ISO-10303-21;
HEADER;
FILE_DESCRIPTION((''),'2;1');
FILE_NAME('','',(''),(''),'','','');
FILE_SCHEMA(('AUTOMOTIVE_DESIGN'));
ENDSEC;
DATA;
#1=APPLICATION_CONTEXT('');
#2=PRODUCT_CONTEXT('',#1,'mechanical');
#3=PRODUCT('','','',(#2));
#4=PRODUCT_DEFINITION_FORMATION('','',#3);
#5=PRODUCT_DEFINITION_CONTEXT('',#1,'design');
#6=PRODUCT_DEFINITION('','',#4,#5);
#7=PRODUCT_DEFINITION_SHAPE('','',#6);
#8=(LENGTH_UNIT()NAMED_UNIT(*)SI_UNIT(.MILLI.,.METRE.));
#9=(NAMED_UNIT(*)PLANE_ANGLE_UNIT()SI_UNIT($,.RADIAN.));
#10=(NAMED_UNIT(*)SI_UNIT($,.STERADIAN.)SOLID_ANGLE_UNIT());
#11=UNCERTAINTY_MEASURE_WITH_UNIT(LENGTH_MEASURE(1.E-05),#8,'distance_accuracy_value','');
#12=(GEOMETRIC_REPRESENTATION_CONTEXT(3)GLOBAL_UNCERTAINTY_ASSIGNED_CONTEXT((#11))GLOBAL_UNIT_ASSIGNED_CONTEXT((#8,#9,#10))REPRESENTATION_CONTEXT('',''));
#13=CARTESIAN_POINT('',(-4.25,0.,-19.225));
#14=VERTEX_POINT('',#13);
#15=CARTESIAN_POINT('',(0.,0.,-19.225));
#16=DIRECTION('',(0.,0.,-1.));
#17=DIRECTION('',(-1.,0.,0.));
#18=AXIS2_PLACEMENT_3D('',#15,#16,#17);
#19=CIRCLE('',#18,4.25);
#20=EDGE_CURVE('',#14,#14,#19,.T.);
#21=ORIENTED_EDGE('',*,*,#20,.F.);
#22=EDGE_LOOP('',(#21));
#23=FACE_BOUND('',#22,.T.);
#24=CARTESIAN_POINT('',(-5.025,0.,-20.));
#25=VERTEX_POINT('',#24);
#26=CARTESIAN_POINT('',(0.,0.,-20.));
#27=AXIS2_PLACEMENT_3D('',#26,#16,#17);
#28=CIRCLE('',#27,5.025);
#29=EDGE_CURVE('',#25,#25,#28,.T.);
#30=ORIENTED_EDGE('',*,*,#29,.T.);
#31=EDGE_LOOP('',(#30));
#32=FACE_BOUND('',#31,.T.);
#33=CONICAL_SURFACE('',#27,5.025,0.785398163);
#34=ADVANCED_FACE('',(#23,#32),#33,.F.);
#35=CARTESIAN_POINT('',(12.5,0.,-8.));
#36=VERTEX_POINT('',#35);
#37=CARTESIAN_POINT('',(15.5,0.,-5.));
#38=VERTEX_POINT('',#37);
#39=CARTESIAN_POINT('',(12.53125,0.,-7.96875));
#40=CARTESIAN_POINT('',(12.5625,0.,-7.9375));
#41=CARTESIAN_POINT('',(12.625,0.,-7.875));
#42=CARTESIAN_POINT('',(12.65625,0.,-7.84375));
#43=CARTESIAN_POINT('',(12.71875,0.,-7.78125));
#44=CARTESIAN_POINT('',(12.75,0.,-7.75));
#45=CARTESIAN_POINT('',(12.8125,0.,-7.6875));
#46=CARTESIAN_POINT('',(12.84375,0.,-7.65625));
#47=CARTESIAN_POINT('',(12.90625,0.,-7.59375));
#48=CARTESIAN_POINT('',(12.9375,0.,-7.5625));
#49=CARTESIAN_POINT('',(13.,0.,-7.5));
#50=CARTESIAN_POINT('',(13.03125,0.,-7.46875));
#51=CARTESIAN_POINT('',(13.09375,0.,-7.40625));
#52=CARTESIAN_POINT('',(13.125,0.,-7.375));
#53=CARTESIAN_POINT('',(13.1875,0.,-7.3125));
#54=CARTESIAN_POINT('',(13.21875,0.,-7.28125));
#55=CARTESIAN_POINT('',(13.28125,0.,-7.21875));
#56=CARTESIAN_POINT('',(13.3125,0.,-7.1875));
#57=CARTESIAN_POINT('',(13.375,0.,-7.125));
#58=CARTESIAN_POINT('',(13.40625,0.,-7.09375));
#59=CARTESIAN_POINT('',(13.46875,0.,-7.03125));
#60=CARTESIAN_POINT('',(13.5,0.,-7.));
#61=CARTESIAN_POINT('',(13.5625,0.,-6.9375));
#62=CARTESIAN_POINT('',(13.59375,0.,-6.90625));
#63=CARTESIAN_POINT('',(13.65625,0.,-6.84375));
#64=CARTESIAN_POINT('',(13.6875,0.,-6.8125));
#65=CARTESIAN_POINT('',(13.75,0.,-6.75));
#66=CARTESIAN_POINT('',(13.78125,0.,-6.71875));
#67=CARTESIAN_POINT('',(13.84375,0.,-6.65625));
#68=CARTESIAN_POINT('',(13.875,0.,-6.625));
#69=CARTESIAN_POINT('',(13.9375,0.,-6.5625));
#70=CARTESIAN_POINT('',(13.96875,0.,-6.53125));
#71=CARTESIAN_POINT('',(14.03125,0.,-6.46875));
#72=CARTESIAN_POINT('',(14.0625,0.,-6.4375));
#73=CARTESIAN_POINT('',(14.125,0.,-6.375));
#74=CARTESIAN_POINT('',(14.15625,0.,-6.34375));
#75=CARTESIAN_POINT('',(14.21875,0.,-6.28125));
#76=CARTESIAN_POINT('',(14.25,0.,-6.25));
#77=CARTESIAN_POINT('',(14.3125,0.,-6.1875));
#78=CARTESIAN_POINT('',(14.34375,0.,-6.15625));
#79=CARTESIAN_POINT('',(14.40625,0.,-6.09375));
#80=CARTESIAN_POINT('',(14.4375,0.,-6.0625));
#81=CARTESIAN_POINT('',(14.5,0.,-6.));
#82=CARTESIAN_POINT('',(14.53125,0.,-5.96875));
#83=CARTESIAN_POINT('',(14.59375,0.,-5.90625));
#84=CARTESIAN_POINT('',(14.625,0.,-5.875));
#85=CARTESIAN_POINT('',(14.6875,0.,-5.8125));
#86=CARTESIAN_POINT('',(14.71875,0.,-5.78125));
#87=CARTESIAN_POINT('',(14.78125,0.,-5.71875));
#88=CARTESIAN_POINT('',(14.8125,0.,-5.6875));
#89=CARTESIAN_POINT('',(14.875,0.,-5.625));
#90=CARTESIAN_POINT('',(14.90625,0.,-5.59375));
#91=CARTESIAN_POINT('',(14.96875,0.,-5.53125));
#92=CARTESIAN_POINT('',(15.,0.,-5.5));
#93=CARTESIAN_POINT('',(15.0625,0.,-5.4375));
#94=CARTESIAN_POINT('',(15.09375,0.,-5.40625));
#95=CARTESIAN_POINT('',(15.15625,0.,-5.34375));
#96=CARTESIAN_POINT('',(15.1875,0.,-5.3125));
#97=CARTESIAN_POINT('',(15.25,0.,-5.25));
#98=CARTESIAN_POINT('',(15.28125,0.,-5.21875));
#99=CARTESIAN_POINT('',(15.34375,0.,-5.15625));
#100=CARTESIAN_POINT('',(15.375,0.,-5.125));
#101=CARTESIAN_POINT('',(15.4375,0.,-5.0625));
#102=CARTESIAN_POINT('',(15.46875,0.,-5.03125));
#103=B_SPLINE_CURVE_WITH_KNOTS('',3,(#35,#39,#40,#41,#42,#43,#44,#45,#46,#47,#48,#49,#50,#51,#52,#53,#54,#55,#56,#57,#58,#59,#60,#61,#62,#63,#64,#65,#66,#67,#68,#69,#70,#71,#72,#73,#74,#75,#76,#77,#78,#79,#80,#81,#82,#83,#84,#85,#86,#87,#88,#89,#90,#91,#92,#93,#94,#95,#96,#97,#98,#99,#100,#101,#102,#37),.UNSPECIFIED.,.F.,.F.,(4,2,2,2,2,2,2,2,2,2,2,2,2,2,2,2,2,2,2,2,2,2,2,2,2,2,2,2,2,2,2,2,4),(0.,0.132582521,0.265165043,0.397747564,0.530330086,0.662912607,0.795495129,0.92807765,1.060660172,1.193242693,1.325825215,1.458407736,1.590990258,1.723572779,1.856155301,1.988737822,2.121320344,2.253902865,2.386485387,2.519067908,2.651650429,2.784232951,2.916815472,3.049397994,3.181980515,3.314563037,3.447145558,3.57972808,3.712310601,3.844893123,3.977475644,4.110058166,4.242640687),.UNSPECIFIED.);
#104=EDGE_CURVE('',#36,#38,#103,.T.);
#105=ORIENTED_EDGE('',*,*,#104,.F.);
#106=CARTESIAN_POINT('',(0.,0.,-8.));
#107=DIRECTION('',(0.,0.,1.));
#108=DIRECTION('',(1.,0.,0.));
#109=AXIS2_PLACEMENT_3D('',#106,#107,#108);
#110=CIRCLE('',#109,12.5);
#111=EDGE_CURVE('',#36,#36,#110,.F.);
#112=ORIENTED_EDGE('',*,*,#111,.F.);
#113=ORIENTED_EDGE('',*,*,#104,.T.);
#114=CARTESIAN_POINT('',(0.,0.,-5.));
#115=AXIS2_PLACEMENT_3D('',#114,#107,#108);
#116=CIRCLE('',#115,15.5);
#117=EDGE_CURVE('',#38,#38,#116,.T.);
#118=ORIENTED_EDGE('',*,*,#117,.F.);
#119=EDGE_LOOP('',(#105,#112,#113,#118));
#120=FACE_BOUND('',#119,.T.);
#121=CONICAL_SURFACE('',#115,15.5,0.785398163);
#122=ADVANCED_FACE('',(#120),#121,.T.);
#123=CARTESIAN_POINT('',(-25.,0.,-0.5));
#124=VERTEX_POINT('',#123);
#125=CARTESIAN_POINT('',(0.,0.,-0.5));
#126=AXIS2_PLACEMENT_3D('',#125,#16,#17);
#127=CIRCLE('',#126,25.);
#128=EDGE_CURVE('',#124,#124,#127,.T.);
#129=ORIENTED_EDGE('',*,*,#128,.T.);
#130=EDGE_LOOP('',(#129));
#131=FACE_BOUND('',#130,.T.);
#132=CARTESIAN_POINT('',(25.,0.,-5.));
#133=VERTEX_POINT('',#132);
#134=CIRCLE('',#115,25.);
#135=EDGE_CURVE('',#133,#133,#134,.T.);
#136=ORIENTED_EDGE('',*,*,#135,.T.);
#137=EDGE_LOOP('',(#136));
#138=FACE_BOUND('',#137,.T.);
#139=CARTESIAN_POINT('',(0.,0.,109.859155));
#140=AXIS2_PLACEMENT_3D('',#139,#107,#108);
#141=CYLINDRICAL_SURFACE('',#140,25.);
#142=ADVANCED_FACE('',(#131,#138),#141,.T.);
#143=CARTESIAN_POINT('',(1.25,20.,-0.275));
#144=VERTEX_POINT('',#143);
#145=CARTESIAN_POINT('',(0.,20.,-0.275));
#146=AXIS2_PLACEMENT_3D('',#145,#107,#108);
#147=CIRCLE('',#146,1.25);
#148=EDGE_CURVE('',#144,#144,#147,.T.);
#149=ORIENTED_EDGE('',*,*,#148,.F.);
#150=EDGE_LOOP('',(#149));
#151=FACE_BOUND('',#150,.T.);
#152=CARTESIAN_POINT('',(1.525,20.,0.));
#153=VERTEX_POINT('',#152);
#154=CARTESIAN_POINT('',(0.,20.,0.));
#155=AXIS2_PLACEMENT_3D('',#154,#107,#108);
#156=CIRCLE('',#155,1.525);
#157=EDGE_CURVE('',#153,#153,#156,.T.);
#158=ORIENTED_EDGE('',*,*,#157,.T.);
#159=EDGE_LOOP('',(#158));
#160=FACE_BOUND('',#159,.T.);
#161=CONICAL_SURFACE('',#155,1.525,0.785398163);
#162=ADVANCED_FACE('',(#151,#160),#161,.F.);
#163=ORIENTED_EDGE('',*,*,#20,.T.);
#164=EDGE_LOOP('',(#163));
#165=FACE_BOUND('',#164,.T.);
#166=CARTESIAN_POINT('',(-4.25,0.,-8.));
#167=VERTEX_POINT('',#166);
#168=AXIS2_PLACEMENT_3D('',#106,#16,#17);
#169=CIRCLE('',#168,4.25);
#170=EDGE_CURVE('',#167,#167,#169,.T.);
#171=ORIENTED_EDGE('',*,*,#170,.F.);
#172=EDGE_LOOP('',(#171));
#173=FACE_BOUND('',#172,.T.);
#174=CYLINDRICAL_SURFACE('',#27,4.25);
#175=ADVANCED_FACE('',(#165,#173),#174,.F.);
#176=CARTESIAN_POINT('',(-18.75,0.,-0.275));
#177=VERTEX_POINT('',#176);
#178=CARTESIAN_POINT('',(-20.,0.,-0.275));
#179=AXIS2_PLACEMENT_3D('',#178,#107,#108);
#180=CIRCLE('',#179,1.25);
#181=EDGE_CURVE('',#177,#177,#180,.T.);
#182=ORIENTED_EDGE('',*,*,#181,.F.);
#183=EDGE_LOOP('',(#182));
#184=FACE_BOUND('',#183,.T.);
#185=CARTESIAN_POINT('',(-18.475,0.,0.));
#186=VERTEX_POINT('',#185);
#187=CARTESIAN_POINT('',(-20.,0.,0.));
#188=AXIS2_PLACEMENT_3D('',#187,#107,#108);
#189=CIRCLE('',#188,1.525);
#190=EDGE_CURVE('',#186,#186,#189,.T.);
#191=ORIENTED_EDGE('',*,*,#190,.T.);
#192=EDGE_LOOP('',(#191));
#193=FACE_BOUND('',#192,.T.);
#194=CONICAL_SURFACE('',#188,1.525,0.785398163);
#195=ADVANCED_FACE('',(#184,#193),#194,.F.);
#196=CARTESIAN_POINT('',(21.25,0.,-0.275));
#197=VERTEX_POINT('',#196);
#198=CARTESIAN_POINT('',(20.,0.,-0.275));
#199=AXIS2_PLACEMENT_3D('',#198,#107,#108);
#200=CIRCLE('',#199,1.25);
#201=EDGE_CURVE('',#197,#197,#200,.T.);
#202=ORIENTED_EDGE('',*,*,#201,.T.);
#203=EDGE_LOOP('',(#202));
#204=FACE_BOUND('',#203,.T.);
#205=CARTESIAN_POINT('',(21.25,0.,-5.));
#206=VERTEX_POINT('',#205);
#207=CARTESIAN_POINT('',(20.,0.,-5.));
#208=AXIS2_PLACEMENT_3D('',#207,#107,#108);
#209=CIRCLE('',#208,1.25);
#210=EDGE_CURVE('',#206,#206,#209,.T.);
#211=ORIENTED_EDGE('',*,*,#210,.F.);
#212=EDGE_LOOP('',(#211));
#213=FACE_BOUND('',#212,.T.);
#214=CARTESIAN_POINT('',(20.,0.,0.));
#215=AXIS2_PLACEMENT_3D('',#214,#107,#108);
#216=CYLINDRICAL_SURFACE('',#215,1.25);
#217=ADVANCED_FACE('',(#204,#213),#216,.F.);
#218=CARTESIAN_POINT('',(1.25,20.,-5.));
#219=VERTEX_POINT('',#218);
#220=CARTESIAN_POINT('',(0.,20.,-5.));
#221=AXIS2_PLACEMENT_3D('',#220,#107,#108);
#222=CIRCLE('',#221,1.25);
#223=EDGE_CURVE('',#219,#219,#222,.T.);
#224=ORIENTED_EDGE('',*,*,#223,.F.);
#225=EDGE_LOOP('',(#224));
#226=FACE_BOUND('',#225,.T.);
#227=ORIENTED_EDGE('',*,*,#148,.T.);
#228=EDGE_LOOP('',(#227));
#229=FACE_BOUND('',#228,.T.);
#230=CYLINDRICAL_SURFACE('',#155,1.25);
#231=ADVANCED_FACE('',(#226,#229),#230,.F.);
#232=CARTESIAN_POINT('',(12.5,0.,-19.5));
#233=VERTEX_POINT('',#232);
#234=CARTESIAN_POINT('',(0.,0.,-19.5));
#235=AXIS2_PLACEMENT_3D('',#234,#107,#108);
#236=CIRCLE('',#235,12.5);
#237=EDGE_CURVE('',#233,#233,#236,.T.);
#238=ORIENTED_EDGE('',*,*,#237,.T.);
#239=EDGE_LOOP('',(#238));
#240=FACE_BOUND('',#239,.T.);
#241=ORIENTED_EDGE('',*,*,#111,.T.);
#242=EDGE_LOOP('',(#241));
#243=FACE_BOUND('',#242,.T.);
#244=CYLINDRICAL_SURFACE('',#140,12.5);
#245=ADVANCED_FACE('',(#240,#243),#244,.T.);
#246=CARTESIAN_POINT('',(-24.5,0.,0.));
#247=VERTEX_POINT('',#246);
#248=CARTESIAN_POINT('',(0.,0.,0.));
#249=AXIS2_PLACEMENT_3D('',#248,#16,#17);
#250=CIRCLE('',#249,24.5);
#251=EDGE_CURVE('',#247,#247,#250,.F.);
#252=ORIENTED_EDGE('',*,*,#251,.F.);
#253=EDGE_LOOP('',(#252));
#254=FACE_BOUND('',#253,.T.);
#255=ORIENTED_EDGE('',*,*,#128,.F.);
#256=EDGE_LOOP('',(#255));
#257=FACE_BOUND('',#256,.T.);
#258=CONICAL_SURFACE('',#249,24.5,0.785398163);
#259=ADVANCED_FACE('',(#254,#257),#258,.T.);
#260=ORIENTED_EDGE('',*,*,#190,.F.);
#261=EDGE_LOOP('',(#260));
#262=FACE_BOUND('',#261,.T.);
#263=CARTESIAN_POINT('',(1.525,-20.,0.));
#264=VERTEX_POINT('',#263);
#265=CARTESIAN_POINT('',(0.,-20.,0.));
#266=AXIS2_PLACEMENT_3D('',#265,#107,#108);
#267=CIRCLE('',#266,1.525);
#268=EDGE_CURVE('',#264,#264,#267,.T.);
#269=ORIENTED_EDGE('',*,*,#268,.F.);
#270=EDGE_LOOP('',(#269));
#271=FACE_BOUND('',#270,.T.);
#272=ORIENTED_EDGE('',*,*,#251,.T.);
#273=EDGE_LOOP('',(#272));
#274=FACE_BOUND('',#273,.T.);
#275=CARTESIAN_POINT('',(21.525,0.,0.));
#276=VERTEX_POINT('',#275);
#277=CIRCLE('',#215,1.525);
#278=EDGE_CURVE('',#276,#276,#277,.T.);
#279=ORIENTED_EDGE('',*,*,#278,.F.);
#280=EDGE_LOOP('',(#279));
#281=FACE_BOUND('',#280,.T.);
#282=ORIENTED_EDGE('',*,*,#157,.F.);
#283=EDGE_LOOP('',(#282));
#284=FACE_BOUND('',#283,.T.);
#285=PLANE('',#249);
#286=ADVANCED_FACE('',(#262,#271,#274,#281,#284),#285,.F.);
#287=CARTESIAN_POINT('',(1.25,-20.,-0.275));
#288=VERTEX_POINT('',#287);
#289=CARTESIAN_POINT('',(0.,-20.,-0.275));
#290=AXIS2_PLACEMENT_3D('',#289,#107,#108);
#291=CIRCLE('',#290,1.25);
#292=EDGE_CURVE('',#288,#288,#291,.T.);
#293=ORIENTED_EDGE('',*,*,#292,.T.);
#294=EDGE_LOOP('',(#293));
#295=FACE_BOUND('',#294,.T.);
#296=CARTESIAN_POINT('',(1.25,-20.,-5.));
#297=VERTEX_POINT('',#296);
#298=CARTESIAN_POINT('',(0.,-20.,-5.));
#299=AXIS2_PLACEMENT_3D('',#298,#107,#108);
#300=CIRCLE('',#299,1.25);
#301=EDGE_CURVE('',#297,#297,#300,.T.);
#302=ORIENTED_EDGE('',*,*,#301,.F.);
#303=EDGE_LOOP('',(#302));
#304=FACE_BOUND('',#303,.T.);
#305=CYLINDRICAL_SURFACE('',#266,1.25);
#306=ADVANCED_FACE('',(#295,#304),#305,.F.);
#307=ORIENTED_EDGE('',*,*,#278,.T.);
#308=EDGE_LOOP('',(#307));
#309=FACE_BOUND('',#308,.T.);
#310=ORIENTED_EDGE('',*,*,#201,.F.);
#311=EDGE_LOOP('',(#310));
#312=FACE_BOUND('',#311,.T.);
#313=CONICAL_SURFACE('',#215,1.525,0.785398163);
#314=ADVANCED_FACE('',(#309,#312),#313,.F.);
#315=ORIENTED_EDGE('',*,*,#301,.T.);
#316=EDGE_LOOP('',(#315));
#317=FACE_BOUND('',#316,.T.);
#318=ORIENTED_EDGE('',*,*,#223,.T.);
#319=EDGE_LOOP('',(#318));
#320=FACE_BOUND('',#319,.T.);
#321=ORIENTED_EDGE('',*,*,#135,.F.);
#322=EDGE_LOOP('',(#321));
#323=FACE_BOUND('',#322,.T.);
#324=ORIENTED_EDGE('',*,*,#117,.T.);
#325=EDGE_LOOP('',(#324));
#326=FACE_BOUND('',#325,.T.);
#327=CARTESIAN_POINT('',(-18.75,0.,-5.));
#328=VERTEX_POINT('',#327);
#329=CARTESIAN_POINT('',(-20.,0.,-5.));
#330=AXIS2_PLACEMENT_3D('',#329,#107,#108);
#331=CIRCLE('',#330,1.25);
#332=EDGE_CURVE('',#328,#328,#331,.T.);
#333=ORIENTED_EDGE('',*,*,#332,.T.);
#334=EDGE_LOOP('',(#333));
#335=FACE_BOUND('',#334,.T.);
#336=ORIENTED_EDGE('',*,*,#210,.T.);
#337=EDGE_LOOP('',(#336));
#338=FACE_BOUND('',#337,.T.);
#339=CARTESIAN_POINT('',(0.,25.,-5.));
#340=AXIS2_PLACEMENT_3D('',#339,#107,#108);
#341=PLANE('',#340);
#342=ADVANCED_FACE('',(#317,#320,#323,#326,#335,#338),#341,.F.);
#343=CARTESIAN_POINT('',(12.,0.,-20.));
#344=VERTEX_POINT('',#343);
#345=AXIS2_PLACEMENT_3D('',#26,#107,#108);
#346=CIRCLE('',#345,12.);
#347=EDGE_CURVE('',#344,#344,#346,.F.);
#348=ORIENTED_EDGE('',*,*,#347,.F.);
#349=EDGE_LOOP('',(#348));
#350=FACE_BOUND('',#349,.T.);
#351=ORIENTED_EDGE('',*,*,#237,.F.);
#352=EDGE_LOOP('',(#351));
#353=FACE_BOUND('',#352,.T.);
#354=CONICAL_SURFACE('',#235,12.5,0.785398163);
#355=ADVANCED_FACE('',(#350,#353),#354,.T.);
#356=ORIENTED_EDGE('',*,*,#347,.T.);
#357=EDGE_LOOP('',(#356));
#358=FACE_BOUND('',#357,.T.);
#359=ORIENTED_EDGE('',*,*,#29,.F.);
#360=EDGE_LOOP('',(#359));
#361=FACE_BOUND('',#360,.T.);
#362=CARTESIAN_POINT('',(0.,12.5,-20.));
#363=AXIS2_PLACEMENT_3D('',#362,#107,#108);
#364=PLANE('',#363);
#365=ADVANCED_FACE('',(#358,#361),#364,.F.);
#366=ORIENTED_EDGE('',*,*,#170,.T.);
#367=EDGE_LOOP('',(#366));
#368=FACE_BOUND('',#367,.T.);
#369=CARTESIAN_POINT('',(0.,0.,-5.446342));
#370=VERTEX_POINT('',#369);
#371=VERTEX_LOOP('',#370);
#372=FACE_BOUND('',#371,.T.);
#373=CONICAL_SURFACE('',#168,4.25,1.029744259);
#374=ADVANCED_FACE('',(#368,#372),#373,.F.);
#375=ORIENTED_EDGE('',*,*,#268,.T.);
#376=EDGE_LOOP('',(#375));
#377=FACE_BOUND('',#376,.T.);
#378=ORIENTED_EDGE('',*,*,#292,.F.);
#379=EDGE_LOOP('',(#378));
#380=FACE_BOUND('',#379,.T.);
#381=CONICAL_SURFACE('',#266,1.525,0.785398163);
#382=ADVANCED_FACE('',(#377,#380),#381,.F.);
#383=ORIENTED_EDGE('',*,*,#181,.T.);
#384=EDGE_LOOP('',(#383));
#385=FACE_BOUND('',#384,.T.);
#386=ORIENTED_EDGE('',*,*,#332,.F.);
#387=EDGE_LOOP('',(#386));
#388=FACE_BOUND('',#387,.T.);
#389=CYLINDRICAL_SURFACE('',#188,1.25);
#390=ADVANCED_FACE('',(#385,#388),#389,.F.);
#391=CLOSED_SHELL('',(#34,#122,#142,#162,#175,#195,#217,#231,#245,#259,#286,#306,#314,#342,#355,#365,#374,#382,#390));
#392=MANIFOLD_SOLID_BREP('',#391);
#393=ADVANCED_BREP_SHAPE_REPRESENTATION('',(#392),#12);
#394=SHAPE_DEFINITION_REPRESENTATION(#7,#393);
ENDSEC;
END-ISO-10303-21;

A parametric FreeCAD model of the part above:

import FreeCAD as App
import Part
import Sketcher

V = App.Vector


def edges_at(feature, points):
    """Names of the edges that pass closest to the given points."""
    edges = feature.Shape.Edges
    near = lambda p: min(range(len(edges)), key=lambda i: edges[i].distToShape(Part.Vertex(*p))[0])
    return sorted({f"Edge{near(p) + 1}" for p in points})


def add_polygon(sketch, points):
    """Adds a closed chain of lines whose ends are joined by coincident constraints."""
    first, n = sketch.GeometryCount, len(points)
    for a, b in zip(points, points[1:] + points[:1]):
        sketch.addGeometry(Part.LineSegment(App.Vector(*a, 0), App.Vector(*b, 0)), False)
    for i in range(n):
        sketch.addConstraint(Sketcher.Constraint("Coincident", first + i, 2, first + (i + 1) % n, 1))

doc = App.newDocument("Part")
body = doc.addObject("PartDesign::Body", "Body")

# Sketch on YZ plane
sketch1 = body.newObject("Sketcher::SketchObject", "Sketch")
sketch1.AttachmentSupport = (doc.getObject("YZ_Plane"), [""])
sketch1.MapMode = "FlatFace"
add_polygon(sketch1, [(25, 0), (0, 0), (0, -20), (12, -20), (12, -5), (25, -5)])  # lines 0-5
sketch1.addConstraint([
    Sketcher.Constraint("Horizontal", 0),
    Sketcher.Constraint("Vertical", 1),
    Sketcher.Constraint("Horizontal", 2),
    Sketcher.Constraint("Vertical", 3),
    Sketcher.Constraint("Horizontal", 4),
    Sketcher.Constraint("Vertical", 5),
    Sketcher.Constraint("Coincident", 0, 2, -1, 1),
    Sketcher.Constraint("Equal", 2, 4),
    Sketcher.Constraint("DistanceX", 0, 2, 0, 1, 25.0),
    Sketcher.Constraint("DistanceY", 1, 2, 1, 1, 20.0),
    Sketcher.Constraint("DistanceY", 3, 1, 3, 2, 15.0),
])
revolution = body.newObject("PartDesign::Revolution", "Revolution")
revolution.Profile = sketch1
revolution.ReferenceAxis = (sketch1, ["V_Axis"])
revolution.Angle = 360

# Sketch on XY plane
sketch2 = body.newObject("Sketcher::SketchObject", "Sketch001")
sketch2.AttachmentSupport = (doc.getObject("XY_Plane"), [""])
sketch2.MapMode = "FlatFace"
sketch2.AttachmentOffset = App.Placement(V(0, 0, -20), App.Rotation())
sketch2.addGeometry(Part.Circle(V(0, 0, 0), V(0, 0, 1), 4.2), False)
sketch2.addConstraint([
    Sketcher.Constraint("Coincident", 0, 3, -1, 1),
    Sketcher.Constraint("Diameter", 0, 8.5),
])
doc.recompute()
hole = body.newObject("PartDesign::Hole", "Hole")
hole.Profile = sketch2
hole.ThreadType = "None"
hole.Diameter = 8.5
hole.DepthType = "Dimension"
hole.Depth = 12
hole.DrillPoint = "Angled"
hole.DrillPointAngle = 118
hole.HoleCutType = "Countersink"
hole.HoleCutDiameter = 10.05
hole.HoleCutCountersinkAngle = 90
hole.Reversed = True
doc.recompute()

chamfer = body.newObject("PartDesign::Chamfer", "Chamfer")
chamfer.Base = (hole, edges_at(hole, [(-12.5, 0, -5)]))
chamfer.Size = 3

# Sketch on XY plane
sketch3 = body.newObject("Sketcher::SketchObject", "Sketch002")
sketch3.AttachmentSupport = (doc.getObject("XY_Plane"), [""])
sketch3.MapMode = "FlatFace"
sketch3.addGeometry([
    Part.Circle(V(-20, 0, 0), V(0, 0, 1), 1.2),
    Part.Circle(V(0, 20, 0), V(0, 0, 1), 1.2),
    Part.Circle(V(20, 0, 0), V(0, 0, 1), 1.2),
    Part.Circle(V(0, -20, 0), V(0, 0, 1), 1.2),
], False)
sketch3.addConstraint([
    Sketcher.Constraint("Equal", 0, 1),
    Sketcher.Constraint("Equal", 1, 2),
    Sketcher.Constraint("Equal", 2, 3),
    Sketcher.Constraint("Symmetric", 0, 3, 2, 3, -1, 1),
    Sketcher.Constraint("Symmetric", 1, 3, 3, 3, -1, 1),
    Sketcher.Constraint("PointOnObject", 0, 3, -1),
    Sketcher.Constraint("PointOnObject", 1, 3, -2),
    Sketcher.Constraint("Diameter", 0, 2.5),
    Sketcher.Constraint("DistanceX", 0, 3, -1, 1, 20.0),
    Sketcher.Constraint("DistanceY", -1, 1, 1, 3, 20.0),
])
doc.recompute()
hole2 = body.newObject("PartDesign::Hole", "Hole001")
hole2.Profile = sketch3
hole2.ThreadType = "None"
hole2.Diameter = 2.5
hole2.DepthType = "Dimension"
hole2.Depth = 7.5
hole2.DrillPoint = "Angled"
hole2.DrillPointAngle = 118
hole2.HoleCutType = "Countersink"
hole2.HoleCutDiameter = 3.05
hole2.HoleCutCountersinkAngle = 90
doc.recompute()

chamfer2 = body.newObject("PartDesign::Chamfer", "Chamfer001")
chamfer2.Base = (hole2, edges_at(hole2, [(-12.5, 0, -20), (-25, 0, 0)]))
chamfer2.Size = 0.5

doc.recompute()
